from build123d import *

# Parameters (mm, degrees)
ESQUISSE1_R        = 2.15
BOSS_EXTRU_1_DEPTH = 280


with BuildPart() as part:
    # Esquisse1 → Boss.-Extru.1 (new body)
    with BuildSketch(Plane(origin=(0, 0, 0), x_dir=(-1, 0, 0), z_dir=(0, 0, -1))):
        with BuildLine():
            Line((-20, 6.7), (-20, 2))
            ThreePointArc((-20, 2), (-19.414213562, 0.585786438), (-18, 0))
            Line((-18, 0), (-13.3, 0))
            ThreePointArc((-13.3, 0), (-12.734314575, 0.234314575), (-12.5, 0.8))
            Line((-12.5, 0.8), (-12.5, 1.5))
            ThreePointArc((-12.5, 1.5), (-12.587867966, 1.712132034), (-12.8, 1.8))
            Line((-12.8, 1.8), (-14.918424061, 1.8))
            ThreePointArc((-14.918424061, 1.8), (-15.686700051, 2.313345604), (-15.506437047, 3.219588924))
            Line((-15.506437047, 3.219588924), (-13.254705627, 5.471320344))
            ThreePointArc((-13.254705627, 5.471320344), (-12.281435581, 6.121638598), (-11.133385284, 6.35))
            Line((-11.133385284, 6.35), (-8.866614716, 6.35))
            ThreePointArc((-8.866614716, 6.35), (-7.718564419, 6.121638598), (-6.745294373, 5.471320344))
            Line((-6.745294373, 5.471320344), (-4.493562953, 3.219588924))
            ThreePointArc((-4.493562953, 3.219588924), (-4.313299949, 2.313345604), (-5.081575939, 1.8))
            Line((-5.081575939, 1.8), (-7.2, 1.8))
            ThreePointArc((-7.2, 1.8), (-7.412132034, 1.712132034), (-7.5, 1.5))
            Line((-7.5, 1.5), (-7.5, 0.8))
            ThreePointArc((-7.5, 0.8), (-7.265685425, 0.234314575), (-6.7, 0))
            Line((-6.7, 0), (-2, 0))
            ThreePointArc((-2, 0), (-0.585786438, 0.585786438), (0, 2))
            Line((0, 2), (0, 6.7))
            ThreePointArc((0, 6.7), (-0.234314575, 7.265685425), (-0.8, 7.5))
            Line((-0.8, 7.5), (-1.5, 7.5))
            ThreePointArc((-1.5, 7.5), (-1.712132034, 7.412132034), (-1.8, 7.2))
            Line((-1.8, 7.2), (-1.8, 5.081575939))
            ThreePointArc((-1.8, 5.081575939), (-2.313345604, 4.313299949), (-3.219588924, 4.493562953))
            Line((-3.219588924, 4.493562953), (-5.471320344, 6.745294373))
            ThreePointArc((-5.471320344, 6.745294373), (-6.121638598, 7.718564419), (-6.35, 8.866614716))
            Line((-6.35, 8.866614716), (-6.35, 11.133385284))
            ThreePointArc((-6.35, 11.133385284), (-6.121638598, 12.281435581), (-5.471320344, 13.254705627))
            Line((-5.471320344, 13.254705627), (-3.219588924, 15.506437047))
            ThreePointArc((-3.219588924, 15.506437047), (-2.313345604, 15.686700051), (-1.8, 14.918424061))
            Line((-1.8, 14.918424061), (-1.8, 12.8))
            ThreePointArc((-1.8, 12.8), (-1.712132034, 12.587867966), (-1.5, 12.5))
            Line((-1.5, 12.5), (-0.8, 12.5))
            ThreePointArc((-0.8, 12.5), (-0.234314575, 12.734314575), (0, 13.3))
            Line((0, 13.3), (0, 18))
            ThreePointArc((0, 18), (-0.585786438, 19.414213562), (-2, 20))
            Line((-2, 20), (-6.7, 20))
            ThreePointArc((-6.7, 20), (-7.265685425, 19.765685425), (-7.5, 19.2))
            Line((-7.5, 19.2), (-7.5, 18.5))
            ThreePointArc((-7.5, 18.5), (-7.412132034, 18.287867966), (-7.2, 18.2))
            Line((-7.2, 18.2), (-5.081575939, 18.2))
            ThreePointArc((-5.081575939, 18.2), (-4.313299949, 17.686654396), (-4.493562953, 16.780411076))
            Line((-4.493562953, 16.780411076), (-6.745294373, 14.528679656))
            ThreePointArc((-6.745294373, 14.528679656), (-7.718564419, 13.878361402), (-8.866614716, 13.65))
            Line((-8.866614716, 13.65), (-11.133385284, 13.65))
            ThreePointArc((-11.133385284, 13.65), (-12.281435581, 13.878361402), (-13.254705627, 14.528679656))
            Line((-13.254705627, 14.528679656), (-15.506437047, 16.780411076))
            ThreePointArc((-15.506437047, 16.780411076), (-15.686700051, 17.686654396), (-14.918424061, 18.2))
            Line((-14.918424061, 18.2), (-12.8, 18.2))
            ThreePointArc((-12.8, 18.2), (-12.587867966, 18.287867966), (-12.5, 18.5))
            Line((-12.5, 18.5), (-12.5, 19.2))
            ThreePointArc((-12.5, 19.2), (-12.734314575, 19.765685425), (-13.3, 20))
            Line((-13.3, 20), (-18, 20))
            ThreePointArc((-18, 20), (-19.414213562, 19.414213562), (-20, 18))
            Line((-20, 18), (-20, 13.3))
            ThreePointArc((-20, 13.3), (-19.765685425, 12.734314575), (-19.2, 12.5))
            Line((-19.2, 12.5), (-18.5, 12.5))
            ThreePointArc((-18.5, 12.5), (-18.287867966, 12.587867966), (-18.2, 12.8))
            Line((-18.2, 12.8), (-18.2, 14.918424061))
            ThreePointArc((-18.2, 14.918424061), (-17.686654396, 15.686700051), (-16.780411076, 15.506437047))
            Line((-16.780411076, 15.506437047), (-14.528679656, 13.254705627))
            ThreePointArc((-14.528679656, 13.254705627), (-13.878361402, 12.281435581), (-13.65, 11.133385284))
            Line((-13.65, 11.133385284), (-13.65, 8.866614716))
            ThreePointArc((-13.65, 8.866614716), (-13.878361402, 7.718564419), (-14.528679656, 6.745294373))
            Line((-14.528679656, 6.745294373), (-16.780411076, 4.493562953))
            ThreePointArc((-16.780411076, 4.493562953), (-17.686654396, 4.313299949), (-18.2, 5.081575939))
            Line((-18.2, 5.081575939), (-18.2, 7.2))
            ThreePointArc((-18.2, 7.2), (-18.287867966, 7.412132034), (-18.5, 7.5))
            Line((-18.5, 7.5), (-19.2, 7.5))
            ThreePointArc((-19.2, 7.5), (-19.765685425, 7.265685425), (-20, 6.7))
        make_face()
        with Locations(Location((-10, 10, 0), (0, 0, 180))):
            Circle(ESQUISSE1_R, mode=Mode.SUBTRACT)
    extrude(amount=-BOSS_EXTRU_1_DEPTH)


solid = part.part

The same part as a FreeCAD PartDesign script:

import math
import FreeCAD as App
import Part
import Sketcher

V = App.Vector

doc = App.newDocument("Part")
body = doc.addObject("PartDesign::Body", "Body")

sketch1 = body.newObject("Sketcher::SketchObject", "Sketch")
sketch1.AttachmentSupport = (doc.getObject("XY_Plane"), [""])
sketch1.MapMode = "FlatFace"
sketch1.addGeometry([
    Part.LineSegment(V(20, 6.7, 0), V(20, 2, 0)),
    Part.ArcOfCircle(Part.Circle(V(18, 2, 0), V(0, 0, 1), 2), math.radians(-90), math.radians(0)),
    Part.LineSegment(V(18, 0, 0), V(13.3, 0, 0)),
    Part.ArcOfCircle(Part.Circle(V(13.3, 0.8, 0), V(0, 0, 1), 0.8), math.radians(180), math.radians(270)),
    Part.LineSegment(V(12.5, 0.8, 0), V(12.5, 1.5, 0)),
    Part.ArcOfCircle(Part.Circle(V(12.8, 1.5, 0), V(0, 0, 1), 0.3), math.radians(90), math.radians(180)),
    Part.LineSegment(V(12.8, 1.8, 0), V(14.92, 1.8, 0)),
    Part.ArcOfCircle(Part.Circle(V(14.92, 2.63, 0), V(0, 0, 1), 0.83), math.radians(-90), math.radians(45)),
    Part.LineSegment(V(15.51, 3.22, 0), V(13.25, 5.47, 0)),
    Part.ArcOfCircle(Part.Circle(V(11.13, 3.35, 0), V(0, 0, 1), 3), math.radians(45), math.radians(90)),
    Part.LineSegment(V(11.13, 6.35, 0), V(8.87, 6.35, 0)),
    Part.ArcOfCircle(Part.Circle(V(8.87, 3.35, 0), V(0, 0, 1), 3), math.radians(90), math.radians(135)),
    Part.LineSegment(V(6.75, 5.47, 0), V(4.49, 3.22, 0)),
    Part.ArcOfCircle(Part.Circle(V(5.08, 2.63, 0), V(0, 0, 1), 0.83), math.radians(135), math.radians(270)),
    Part.LineSegment(V(5.08, 1.8, 0), V(7.2, 1.8, 0)),
    Part.ArcOfCircle(Part.Circle(V(7.2, 1.5, 0), V(0, 0, 1), 0.3), math.radians(0), math.radians(90)),
    Part.LineSegment(V(7.5, 1.5, 0), V(7.5, 0.8, 0)),
    Part.ArcOfCircle(Part.Circle(V(6.7, 0.8, 0), V(0, 0, 1), 0.8), math.radians(-90), math.radians(0)),
    Part.LineSegment(V(6.7, 0, 0), V(2, 0, 0)),
    Part.ArcOfCircle(Part.Circle(V(2, 2, 0), V(0, 0, 1), 2), math.radians(-180), math.radians(-90)),
    Part.LineSegment(V(0, 2, 0), V(0, 6.7, 0)),
    Part.ArcOfCircle(Part.Circle(V(0.8, 6.7, 0), V(0, 0, 1), 0.8), math.radians(90), math.radians(180)),
    Part.LineSegment(V(0.8, 7.5, 0), V(1.5, 7.5, 0)),
    Part.ArcOfCircle(Part.Circle(V(1.5, 7.2, 0), V(0, 0, 1), 0.3), math.radians(0), math.radians(90)),
    Part.LineSegment(V(1.8, 7.2, 0), V(1.8, 5.08, 0)),
    Part.ArcOfCircle(Part.Circle(V(2.63, 5.08, 0), V(0, 0, 1), 0.83), math.radians(180), math.radians(315)),
    Part.LineSegment(V(3.22, 4.49, 0), V(5.47, 6.75, 0)),
    Part.ArcOfCircle(Part.Circle(V(3.35, 8.87, 0), V(0, 0, 1), 3), math.radians(-45), math.radians(0)),
    Part.LineSegment(V(6.35, 8.87, 0), V(6.35, 11.13, 0)),
    Part.ArcOfCircle(Part.Circle(V(3.35, 11.13, 0), V(0, 0, 1), 3), math.radians(0), math.radians(45)),
    Part.LineSegment(V(5.47, 13.25, 0), V(3.22, 15.51, 0)),
    Part.ArcOfCircle(Part.Circle(V(2.63, 14.92, 0), V(0, 0, 1), 0.83), math.radians(45), math.radians(180)),
    Part.LineSegment(V(1.8, 14.92, 0), V(1.8, 12.8, 0)),
    Part.ArcOfCircle(Part.Circle(V(1.5, 12.8, 0), V(0, 0, 1), 0.3), math.radians(-90), math.radians(0)),
    Part.LineSegment(V(1.5, 12.5, 0), V(0.8, 12.5, 0)),
    Part.ArcOfCircle(Part.Circle(V(0.8, 13.3, 0), V(0, 0, 1), 0.8), math.radians(180), math.radians(270)),
    Part.LineSegment(V(0, 13.3, 0), V(0, 18, 0)),
    Part.ArcOfCircle(Part.Circle(V(2, 18, 0), V(0, 0, 1), 2), math.radians(90), math.radians(180)),
    Part.LineSegment(V(2, 20, 0), V(6.7, 20, 0)),
    Part.ArcOfCircle(Part.Circle(V(6.7, 19.2, 0), V(0, 0, 1), 0.8), math.radians(0), math.radians(90)),
    Part.LineSegment(V(7.5, 19.2, 0), V(7.5, 18.5, 0)),
    Part.ArcOfCircle(Part.Circle(V(7.2, 18.5, 0), V(0, 0, 1), 0.3), math.radians(-90), math.radians(0)),
    Part.LineSegment(V(7.2, 18.2, 0), V(5.08, 18.2, 0)),
    Part.ArcOfCircle(Part.Circle(V(5.08, 17.37, 0), V(0, 0, 1), 0.83), math.radians(90), math.radians(225)),
    Part.LineSegment(V(4.49, 16.78, 0), V(6.75, 14.53, 0)),
    Part.ArcOfCircle(Part.Circle(V(8.87, 16.65, 0), V(0, 0, 1), 3), math.radians(-135), math.radians(-90)),
    Part.LineSegment(V(8.87, 13.65, 0), V(11.13, 13.65, 0)),
    Part.ArcOfCircle(Part.Circle(V(11.13, 16.65, 0), V(0, 0, 1), 3), math.radians(-90), math.radians(-45)),
    Part.LineSegment(V(13.25, 14.53, 0), V(15.51, 16.78, 0)),
    Part.ArcOfCircle(Part.Circle(V(14.92, 17.37, 0), V(0, 0, 1), 0.83), math.radians(-45), math.radians(90)),
    Part.LineSegment(V(14.92, 18.2, 0), V(12.8, 18.2, 0)),
    Part.ArcOfCircle(Part.Circle(V(12.8, 18.5, 0), V(0, 0, 1), 0.3), math.radians(-180), math.radians(-90)),
    Part.LineSegment(V(12.5, 18.5, 0), V(12.5, 19.2, 0)),
    Part.ArcOfCircle(Part.Circle(V(13.3, 19.2, 0), V(0, 0, 1), 0.8), math.radians(90), math.radians(180)),
    Part.LineSegment(V(13.3, 20, 0), V(18, 20, 0)),
    Part.ArcOfCircle(Part.Circle(V(18, 18, 0), V(0, 0, 1), 2), math.radians(0), math.radians(90)),
    Part.LineSegment(V(20, 18, 0), V(20, 13.3, 0)),
    Part.ArcOfCircle(Part.Circle(V(19.2, 13.3, 0), V(0, 0, 1), 0.8), math.radians(-90), math.radians(0)),
    Part.LineSegment(V(19.2, 12.5, 0), V(18.5, 12.5, 0)),
    Part.ArcOfCircle(Part.Circle(V(18.5, 12.8, 0), V(0, 0, 1), 0.3), math.radians(-180), math.radians(-90)),
    Part.LineSegment(V(18.2, 12.8, 0), V(18.2, 14.92, 0)),
    Part.ArcOfCircle(Part.Circle(V(17.37, 14.92, 0), V(0, 0, 1), 0.83), math.radians(0), math.radians(135)),
    Part.LineSegment(V(16.78, 15.51, 0), V(14.53, 13.25, 0)),
    Part.ArcOfCircle(Part.Circle(V(16.65, 11.13, 0), V(0, 0, 1), 3), math.radians(135), math.radians(180)),
    Part.LineSegment(V(13.65, 11.13, 0), V(13.65, 8.87, 0)),
    Part.ArcOfCircle(Part.Circle(V(16.65, 8.87, 0), V(0, 0, 1), 3), math.radians(180), math.radians(225)),
    Part.LineSegment(V(14.53, 6.75, 0), V(16.78, 4.49, 0)),
    Part.ArcOfCircle(Part.Circle(V(17.37, 5.08, 0), V(0, 0, 1), 0.83), math.radians(-135), math.radians(0)),
    Part.LineSegment(V(18.2, 5.08, 0), V(18.2, 7.2, 0)),
    Part.ArcOfCircle(Part.Circle(V(18.5, 7.2, 0), V(0, 0, 1), 0.3), math.radians(90), math.radians(180)),
    Part.LineSegment(V(18.5, 7.5, 0), V(19.2, 7.5, 0)),
    Part.ArcOfCircle(Part.Circle(V(19.2, 6.7, 0), V(0, 0, 1), 0.8), math.radians(0), math.radians(90)),
    Part.Circle(V(10, 10, 0), V(0, 0, 1), 2.15),
], False)
sketch1.addConstraint([
    Sketcher.Constraint("Tangent", 0, 2, 1, 2),
    Sketcher.Constraint("Tangent", 1, 1, 2, 1),
    Sketcher.Constraint("Tangent", 2, 2, 3, 2),
    Sketcher.Constraint("Tangent", 3, 1, 4, 1),
    Sketcher.Constraint("Tangent", 4, 2, 5, 2),
    Sketcher.Constraint("Tangent", 5, 1, 6, 1),
    Sketcher.Constraint("Tangent", 6, 2, 7, 1),
    Sketcher.Constraint("Tangent", 7, 2, 8, 1),
    Sketcher.Constraint("Tangent", 8, 2, 9, 1),
    Sketcher.Constraint("Tangent", 9, 2, 10, 1),
    Sketcher.Constraint("Tangent", 10, 2, 11, 1),
    Sketcher.Constraint("Tangent", 11, 2, 12, 1),
    Sketcher.Constraint("Tangent", 12, 2, 13, 1),
    Sketcher.Constraint("Tangent", 13, 2, 14, 1),
    Sketcher.Constraint("Tangent", 14, 2, 15, 2),
    Sketcher.Constraint("Tangent", 15, 1, 16, 1),
    Sketcher.Constraint("Tangent", 16, 2, 17, 2),
    Sketcher.Constraint("Tangent", 17, 1, 18, 1),
    Sketcher.Constraint("Tangent", 18, 2, 19, 2),
    Sketcher.Constraint("Tangent", 19, 1, 20, 1),
    Sketcher.Constraint("Tangent", 20, 2, 21, 2),
    Sketcher.Constraint("Tangent", 21, 1, 22, 1),
    Sketcher.Constraint("Tangent", 22, 2, 23, 2),
    Sketcher.Constraint("Tangent", 23, 1, 24, 1),
    Sketcher.Constraint("Tangent", 24, 2, 25, 1),
    Sketcher.Constraint("Tangent", 25, 2, 26, 1),
    Sketcher.Constraint("Tangent", 26, 2, 27, 1),
    Sketcher.Constraint("Tangent", 27, 2, 28, 1),
    Sketcher.Constraint("Tangent", 28, 2, 29, 1),
    Sketcher.Constraint("Tangent", 29, 2, 30, 1),
    Sketcher.Constraint("Tangent", 30, 2, 31, 1),
    Sketcher.Constraint("Tangent", 31, 2, 32, 1),
    Sketcher.Constraint("Tangent", 32, 2, 33, 2),
    Sketcher.Constraint("Tangent", 33, 1, 34, 1),
    Sketcher.Constraint("Tangent", 34, 2, 35, 2),
    Sketcher.Constraint("Tangent", 35, 1, 36, 1),
    Sketcher.Constraint("Tangent", 36, 2, 37, 2),
    Sketcher.Constraint("Tangent", 37, 1, 38, 1),
    Sketcher.Constraint("Tangent", 38, 2, 39, 2),
    Sketcher.Constraint("Tangent", 39, 1, 40, 1),
    Sketcher.Constraint("Tangent", 40, 2, 41, 2),
    Sketcher.Constraint("Tangent", 41, 1, 42, 1),
    Sketcher.Constraint("Tangent", 42, 2, 43, 1),
    Sketcher.Constraint("Tangent", 43, 2, 44, 1),
    Sketcher.Constraint("Tangent", 44, 2, 45, 1),
    Sketcher.Constraint("Tangent", 45, 2, 46, 1),
    Sketcher.Constraint("Tangent", 46, 2, 47, 1),
    Sketcher.Constraint("Tangent", 47, 2, 48, 1),
    Sketcher.Constraint("Tangent", 48, 2, 49, 1),
    Sketcher.Constraint("Tangent", 49, 2, 50, 1),
    Sketcher.Constraint("Tangent", 50, 2, 51, 2),
    Sketcher.Constraint("Tangent", 51, 1, 52, 1),
    Sketcher.Constraint("Tangent", 52, 2, 53, 2),
    Sketcher.Constraint("Tangent", 53, 1, 54, 1),
    Sketcher.Constraint("Tangent", 54, 2, 55, 2),
    Sketcher.Constraint("Tangent", 55, 1, 56, 1),
    Sketcher.Constraint("Tangent", 56, 2, 57, 2),
    Sketcher.Constraint("Tangent", 57, 1, 58, 1),
    Sketcher.Constraint("Tangent", 58, 2, 59, 2),
    Sketcher.Constraint("Tangent", 59, 1, 60, 1),
    Sketcher.Constraint("Tangent", 60, 2, 61, 1),
    Sketcher.Constraint("Tangent", 61, 2, 62, 1),
    Sketcher.Constraint("Tangent", 62, 2, 63, 1),
    Sketcher.Constraint("Tangent", 63, 2, 64, 1),
    Sketcher.Constraint("Tangent", 64, 2, 65, 1),
    Sketcher.Constraint("Tangent", 65, 2, 66, 1),
    Sketcher.Constraint("Tangent", 66, 2, 67, 1),
    Sketcher.Constraint("Tangent", 67, 2, 68, 1),
    Sketcher.Constraint("Tangent", 68, 2, 69, 2),
    Sketcher.Constraint("Tangent", 69, 1, 70, 1),
    Sketcher.Constraint("Tangent", 70, 2, 71, 2),
    Sketcher.Constraint("Tangent", 71, 1, 0, 1),
    Sketcher.Constraint("Vertical", 0),
    Sketcher.Constraint("Horizontal", 2),
    Sketcher.Constraint("Vertical", 4),
    Sketcher.Constraint("Horizontal", 6),
    Sketcher.Constraint("Horizontal", 10),
    Sketcher.Constraint("Horizontal", 14),
    Sketcher.Constraint("Vertical", 16),
    Sketcher.Constraint("Horizontal", 18),
    Sketcher.Constraint("Vertical", 20),
    Sketcher.Constraint("Horizontal", 22),
    Sketcher.Constraint("Vertical", 24),
    Sketcher.Constraint("Vertical", 28),
    Sketcher.Constraint("Vertical", 32),
    Sketcher.Constraint("Horizontal", 34),
    Sketcher.Constraint("Vertical", 36),
    Sketcher.Constraint("Horizontal", 38),
    Sketcher.Constraint("Vertical", 40),
    Sketcher.Constraint("Horizontal", 42),
    Sketcher.Constraint("Horizontal", 46),
    Sketcher.Constraint("Horizontal", 50),
    Sketcher.Constraint("Vertical", 52),
    Sketcher.Constraint("Horizontal", 54),
    Sketcher.Constraint("Vertical", 56),
    Sketcher.Constraint("Horizontal", 58),
    Sketcher.Constraint("Vertical", 60),
    Sketcher.Constraint("Vertical", 64),
    Sketcher.Constraint("Vertical", 68),
    Sketcher.Constraint("Horizontal", 70),
    Sketcher.Constraint("Equal", 9, 11),
    Sketcher.Constraint("Equal", 7, 13),
    Sketcher.Constraint("Equal", 5, 15),
    Sketcher.Constraint("Equal", 3, 17),
    Sketcher.Constraint("Equal", 1, 19),
    Sketcher.Constraint("Equal", 17, 21),
    Sketcher.Constraint("Equal", 15, 23),
    Sketcher.Constraint("Equal", 13, 25),
    Sketcher.Constraint("Equal", 11, 27),
    Sketcher.Constraint("Equal", 27, 29),
    Sketcher.Constraint("Equal", 25, 31),
    Sketcher.Constraint("Equal", 23, 33),
    Sketcher.Constraint("Equal", 21, 35),
    Sketcher.Constraint("Equal", 19, 37),
    Sketcher.Constraint("Equal", 35, 39),
    Sketcher.Constraint("Equal", 33, 41),
    Sketcher.Constraint("Equal", 31, 43),
    Sketcher.Constraint("Equal", 29, 45),
    Sketcher.Constraint("Equal", 45, 47),
    Sketcher.Constraint("Equal", 43, 49),
    Sketcher.Constraint("Equal", 41, 51),
    Sketcher.Constraint("Equal", 39, 53),
    Sketcher.Constraint("Equal", 37, 55),
    Sketcher.Constraint("Equal", 53, 57),
    Sketcher.Constraint("Equal", 51, 59),
    Sketcher.Constraint("Equal", 49, 61),
    Sketcher.Constraint("Equal", 47, 63),
    Sketcher.Constraint("Equal", 63, 65),
    Sketcher.Constraint("Equal", 61, 67),
    Sketcher.Constraint("Equal", 59, 69),
    Sketcher.Constraint("Equal", 57, 71),
    Sketcher.Constraint("PointOnObject", 1, 1, -1),
    Sketcher.Constraint("PointOnObject", 17, 1, -1),
    Sketcher.Constraint("PointOnObject", 19, 1, -2),
    Sketcher.Constraint("PointOnObject", 35, 1, -2),
    Sketcher.Constraint("Perpendicular", 8, 12),
    Sketcher.Constraint("Parallel", 12, 26),
    Sketcher.Constraint("Perpendicular", 26, 30),
    Sketcher.Constraint("Parallel", 30, 44),
    Sketcher.Constraint("Perpendicular", 44, 48),
    Sketcher.Constraint("Parallel", 48, 62),
    Sketcher.Constraint("Perpendicular", 62, 66),
    Sketcher.Constraint("Horizontal", 7, 3, 13, 3),
    Sketcher.Constraint("Horizontal", 43, 3, 49, 3),
    Sketcher.Constraint("Horizontal", 39, 3, 53, 3),
    Sketcher.Constraint("Horizontal", 35, 3, 57, 3),
    Sketcher.Constraint("Horizontal", 31, 3, 61, 3),
    Sketcher.Constraint("Horizontal", 29, 3, 63, 3),
    Sketcher.Constraint("Horizontal", 27, 3, 65, 3),
    Sketcher.Constraint("Horizontal", 25, 3, 67, 3),
    Sketcher.Constraint("Horizontal", 23, 3, 69, 3),
    Sketcher.Constraint("Horizontal", 8, 2, 11, 2),
    Sketcher.Constraint("Vertical", 25, 3, 31, 3),
    Sketcher.Constraint("Vertical", 17, 3, 39, 3),
    Sketcher.Constraint("Vertical", 13, 3, 43, 3),
    Sketcher.Constraint("Vertical", 11, 3, 45, 3),
    Sketcher.Constraint("Vertical", 9, 3, 47, 3),
    Sketcher.Constraint("Vertical", 5, 3, 51, 3),
    Sketcher.Constraint("Vertical", 1, 3, 55, 3),
    Sketcher.Constraint("Equal", 6, 14),
    Sketcher.Constraint("Equal", 2, 18),
    Sketcher.Constraint("Equal", 34, 58),
    Sketcher.Constraint("Equal", 54, 0),
    Sketcher.Constraint("Equal", 70, 4),
    Sketcher.Constraint("Equal", 50, 24),
    Sketcher.Constraint("Equal", 46, 28),
    Sketcher.Constraint("Equal", 24, 32),
    Sketcher.Constraint("Equal", 20, 36),
    Sketcher.Constraint("Equal", 16, 40),
    Sketcher.Constraint("Equal", 12, 26),
    Sketcher.Constraint("Radius", 1, 2.0),
    Sketcher.Constraint("Radius", 9, 3.0),
    Sketcher.Constraint("Diameter", 72, 4.3),
    Sketcher.Constraint("Radius", 3, 0.8),
    Sketcher.Constraint("Radius", 5, 0.3),
    Sketcher.Constraint("DistanceX", 2, 2, 2, 1, 4.7),
    Sketcher.Constraint("DistanceX", 22, 1, 22, 2, 0.7),
    Sketcher.Constraint("DistanceX", -1, 1, 1, 3, 18.0),
    Sketcher.Constraint("DistanceX", -1, 1, 72, 3, 10.0),
    Sketcher.Constraint("DistanceY", -1, 1, 72, 3, 10.0),
    Sketcher.Constraint("DistanceY", -1, 1, 9, 3, 3.35),
    Sketcher.Constraint("Radius", 7, 0.831576),
    Sketcher.Constraint("DistanceX", 10, 2, 10, 1, 2.266771),
])
pad1 = body.newObject("PartDesign::Pad", "Pad")
pad1.Profile = sketch1
pad1.Length = 280

doc.recompute()
